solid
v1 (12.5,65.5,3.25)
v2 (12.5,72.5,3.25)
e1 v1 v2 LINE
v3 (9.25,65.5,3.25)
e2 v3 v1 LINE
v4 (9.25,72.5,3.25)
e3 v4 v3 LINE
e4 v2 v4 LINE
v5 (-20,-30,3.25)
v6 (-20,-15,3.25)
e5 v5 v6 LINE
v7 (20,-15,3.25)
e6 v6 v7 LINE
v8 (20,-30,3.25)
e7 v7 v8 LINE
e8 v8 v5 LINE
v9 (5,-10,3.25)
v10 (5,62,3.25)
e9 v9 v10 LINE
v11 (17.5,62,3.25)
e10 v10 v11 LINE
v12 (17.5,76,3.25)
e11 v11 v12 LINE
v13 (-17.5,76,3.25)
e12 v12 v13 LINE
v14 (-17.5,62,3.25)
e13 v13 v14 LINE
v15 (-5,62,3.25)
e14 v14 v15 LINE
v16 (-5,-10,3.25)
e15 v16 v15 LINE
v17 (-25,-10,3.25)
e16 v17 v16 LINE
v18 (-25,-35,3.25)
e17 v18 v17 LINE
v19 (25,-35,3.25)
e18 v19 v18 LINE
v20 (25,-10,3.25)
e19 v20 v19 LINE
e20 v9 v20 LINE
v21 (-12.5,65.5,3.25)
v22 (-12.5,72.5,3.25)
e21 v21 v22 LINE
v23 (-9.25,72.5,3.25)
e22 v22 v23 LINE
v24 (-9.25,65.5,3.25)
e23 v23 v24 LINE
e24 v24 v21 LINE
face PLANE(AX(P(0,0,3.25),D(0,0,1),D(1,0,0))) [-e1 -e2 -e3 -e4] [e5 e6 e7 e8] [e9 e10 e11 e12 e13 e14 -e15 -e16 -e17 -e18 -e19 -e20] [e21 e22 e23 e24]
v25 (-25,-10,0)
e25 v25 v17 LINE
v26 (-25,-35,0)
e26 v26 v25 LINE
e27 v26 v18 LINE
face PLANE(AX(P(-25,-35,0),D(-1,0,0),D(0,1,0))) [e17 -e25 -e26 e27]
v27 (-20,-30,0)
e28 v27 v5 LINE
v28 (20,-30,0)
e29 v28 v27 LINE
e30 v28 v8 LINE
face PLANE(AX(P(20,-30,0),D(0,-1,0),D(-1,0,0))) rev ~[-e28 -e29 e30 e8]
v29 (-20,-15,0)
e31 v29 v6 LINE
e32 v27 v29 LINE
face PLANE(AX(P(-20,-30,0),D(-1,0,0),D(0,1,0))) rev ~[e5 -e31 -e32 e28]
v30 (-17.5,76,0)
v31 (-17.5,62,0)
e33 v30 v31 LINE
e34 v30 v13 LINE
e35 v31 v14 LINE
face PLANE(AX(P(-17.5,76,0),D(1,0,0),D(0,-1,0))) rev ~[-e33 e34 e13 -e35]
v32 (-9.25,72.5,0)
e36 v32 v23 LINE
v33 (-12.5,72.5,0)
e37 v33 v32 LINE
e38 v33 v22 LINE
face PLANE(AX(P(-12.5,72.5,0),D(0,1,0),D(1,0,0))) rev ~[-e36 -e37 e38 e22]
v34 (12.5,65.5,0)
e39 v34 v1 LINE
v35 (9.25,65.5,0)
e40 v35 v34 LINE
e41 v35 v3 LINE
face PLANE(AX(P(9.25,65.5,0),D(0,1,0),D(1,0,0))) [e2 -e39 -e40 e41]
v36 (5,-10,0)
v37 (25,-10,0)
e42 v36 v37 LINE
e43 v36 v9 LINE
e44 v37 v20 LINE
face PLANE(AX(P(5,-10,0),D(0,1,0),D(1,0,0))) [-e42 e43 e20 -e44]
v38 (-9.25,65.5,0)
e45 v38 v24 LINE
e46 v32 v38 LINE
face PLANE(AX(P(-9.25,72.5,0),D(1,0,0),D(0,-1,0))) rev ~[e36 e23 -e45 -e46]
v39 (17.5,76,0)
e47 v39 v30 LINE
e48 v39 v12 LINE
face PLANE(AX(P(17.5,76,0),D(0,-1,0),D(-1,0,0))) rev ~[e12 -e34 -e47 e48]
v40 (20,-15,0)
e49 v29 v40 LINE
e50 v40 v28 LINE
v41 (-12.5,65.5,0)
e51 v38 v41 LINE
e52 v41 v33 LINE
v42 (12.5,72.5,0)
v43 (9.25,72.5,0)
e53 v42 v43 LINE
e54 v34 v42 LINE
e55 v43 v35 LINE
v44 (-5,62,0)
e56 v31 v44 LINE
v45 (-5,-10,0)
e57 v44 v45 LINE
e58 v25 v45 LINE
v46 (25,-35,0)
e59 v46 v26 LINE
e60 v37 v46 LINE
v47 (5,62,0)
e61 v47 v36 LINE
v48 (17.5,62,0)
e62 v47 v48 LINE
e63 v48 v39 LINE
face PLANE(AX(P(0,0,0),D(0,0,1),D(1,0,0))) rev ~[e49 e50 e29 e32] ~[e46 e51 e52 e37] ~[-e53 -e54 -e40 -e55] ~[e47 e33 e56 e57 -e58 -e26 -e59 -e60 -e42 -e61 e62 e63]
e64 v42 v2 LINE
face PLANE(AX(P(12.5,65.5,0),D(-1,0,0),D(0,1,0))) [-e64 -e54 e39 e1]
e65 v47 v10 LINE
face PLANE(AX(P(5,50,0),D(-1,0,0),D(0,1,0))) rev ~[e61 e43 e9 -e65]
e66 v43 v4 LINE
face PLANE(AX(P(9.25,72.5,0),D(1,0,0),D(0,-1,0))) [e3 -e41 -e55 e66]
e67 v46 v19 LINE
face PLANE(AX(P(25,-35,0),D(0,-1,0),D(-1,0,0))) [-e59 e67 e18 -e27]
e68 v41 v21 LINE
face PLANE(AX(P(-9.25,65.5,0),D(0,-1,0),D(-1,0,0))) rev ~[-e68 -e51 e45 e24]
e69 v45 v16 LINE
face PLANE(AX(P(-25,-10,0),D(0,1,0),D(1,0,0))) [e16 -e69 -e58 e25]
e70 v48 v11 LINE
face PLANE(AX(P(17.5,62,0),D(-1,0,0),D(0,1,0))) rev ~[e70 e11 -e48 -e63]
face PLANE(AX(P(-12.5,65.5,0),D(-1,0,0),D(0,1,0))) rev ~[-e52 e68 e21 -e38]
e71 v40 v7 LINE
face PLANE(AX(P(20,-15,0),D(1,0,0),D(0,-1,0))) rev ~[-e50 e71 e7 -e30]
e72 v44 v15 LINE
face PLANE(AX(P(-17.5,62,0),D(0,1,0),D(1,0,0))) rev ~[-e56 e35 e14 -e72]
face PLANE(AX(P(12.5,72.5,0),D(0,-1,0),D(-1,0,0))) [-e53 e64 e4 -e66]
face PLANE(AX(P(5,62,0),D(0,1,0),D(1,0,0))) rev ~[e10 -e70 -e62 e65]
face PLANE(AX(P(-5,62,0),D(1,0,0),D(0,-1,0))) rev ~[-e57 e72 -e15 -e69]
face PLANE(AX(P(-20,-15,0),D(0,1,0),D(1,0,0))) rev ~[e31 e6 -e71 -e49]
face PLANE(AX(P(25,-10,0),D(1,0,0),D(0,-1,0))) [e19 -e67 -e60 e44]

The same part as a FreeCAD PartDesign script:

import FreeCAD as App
import Part
import Sketcher


def add_polygon(sketch, points):
    """Adds a closed chain of lines whose ends are joined by coincident constraints."""
    first, n = sketch.GeometryCount, len(points)
    for a, b in zip(points, points[1:] + points[:1]):
        sketch.addGeometry(Part.LineSegment(App.Vector(*a, 0), App.Vector(*b, 0)), False)
    for i in range(n):
        sketch.addConstraint(Sketcher.Constraint("Coincident", first + i, 2, first + (i + 1) % n, 1))

doc = App.newDocument("Part")
body = doc.addObject("PartDesign::Body", "Body")

# Sketch on XY plane
sketch1 = body.newObject("Sketcher::SketchObject", "Sketch")
sketch1.AttachmentSupport = (doc.getObject("XY_Plane"), [""])
sketch1.MapMode = "FlatFace"
add_polygon(sketch1, [(-5, 62), (-5, -10), (-25, -10), (-25, -35), (25, -35), (25, -10), (5, -10), (5, 62), (18, 62), (18, 76), (-18, 76), (-18, 62)])  # lines 0-11
add_polygon(sketch1, [(-20, -15), (20, -15), (20, -30), (-20, -30)])  # lines 12-15
sketch1.addConstraint([
    Sketcher.Constraint("Vertical", 0),
    Sketcher.Constraint("Horizontal", 1),
    Sketcher.Constraint("Vertical", 2),
    Sketcher.Constraint("Horizontal", 3),
    Sketcher.Constraint("Vertical", 4),
    Sketcher.Constraint("Horizontal", 5),
    Sketcher.Constraint("Vertical", 6),
    Sketcher.Constraint("Horizontal", 7),
    Sketcher.Constraint("Vertical", 8),
    Sketcher.Constraint("Horizontal", 9),
    Sketcher.Constraint("Vertical", 10),
    Sketcher.Constraint("Horizontal", 11),
    Sketcher.Constraint("Horizontal", 12),
    Sketcher.Constraint("Vertical", 13),
    Sketcher.Constraint("Horizontal", 14),
    Sketcher.Constraint("Vertical", 15),
    Sketcher.Constraint("Symmetric", 1, 2, 4, 2, -2),
    Sketcher.Constraint("Symmetric", 7, 2, 10, 2, -2),
    Sketcher.Constraint("Equal", 1, 5),
    Sketcher.Constraint("DistanceX", 9, 2, 9, 1, 35.0),
    Sketcher.Constraint("DistanceX", 12, 1, 12, 2, 40.0),
    Sketcher.Constraint("DistanceY", 0, 2, 0, 1, 72.0),
    Sketcher.Constraint("DistanceY", 8, 1, 8, 2, 14.0),
    Sketcher.Constraint("DistanceY", 13, 2, 13, 1, 15.0),
    Sketcher.Constraint("DistanceX", 0, 2, -1, 1, 5.0),
    Sketcher.Constraint("DistanceY", 0, 2, -1, 1, 10.0),
    Sketcher.Constraint("DistanceY", 2, 2, -1, 1, 35.0),
    Sketcher.Constraint("DistanceY", 12, 2, -1, 1, 15.0),
    Sketcher.Constraint("DistanceX", 0, 2, 3, 2, 30.0),
    Sketcher.Constraint("DistanceX", 12, 2, 4, 2, 5.0),
])
pad1 = body.newObject("PartDesign::Pad", "Pad")
pad1.Profile = sketch1
pad1.Length = 3.25

# Sketch on XY plane
sketch2 = body.newObject("Sketcher::SketchObject", "Sketch001")
sketch2.AttachmentSupport = (doc.getObject("XY_Plane"), [""])
sketch2.MapMode = "FlatFace"
add_polygon(sketch2, [(-9.2, 72.5), (-12.5, 72.5), (-12.5, 65.5), (-9.2, 65.5)])  # lines 0-3
add_polygon(sketch2, [(12.5, 65.5), (12.5, 72.5), (9.2, 72.5), (9.2, 65.5)])  # lines 4-7
sketch2.addConstraint([
    Sketcher.Constraint("Horizontal", 0),
    Sketcher.Constraint("Vertical", 1),
    Sketcher.Constraint("Horizontal", 2),
    Sketcher.Constraint("Vertical", 3),
    Sketcher.Constraint("Vertical", 4),
    Sketcher.Constraint("Horizontal", 5),
    Sketcher.Constraint("Vertical", 6),
    Sketcher.Constraint("Horizontal", 7),
    Sketcher.Constraint("Symmetric", 0, 2, 4, 2, -2),
    Sketcher.Constraint("Symmetric", 2, 2, 6, 2, -2),
    Sketcher.Constraint("DistanceY", 1, 2, 1, 1, 7.0),
    Sketcher.Constraint("DistanceX", 0, 2, 0, 1, 3.25),
    Sketcher.Constraint("DistanceX", 0, 2, 4, 2, 25.0),
    Sketcher.Constraint("DistanceY", -1, 1, 0, 2, 72.5),
])
pocket1 = body.newObject("PartDesign::Pocket", "Pocket")
pocket1.Profile = sketch2
pocket1.Length = 3.25
pocket1.Reversed = True

doc.recompute()
